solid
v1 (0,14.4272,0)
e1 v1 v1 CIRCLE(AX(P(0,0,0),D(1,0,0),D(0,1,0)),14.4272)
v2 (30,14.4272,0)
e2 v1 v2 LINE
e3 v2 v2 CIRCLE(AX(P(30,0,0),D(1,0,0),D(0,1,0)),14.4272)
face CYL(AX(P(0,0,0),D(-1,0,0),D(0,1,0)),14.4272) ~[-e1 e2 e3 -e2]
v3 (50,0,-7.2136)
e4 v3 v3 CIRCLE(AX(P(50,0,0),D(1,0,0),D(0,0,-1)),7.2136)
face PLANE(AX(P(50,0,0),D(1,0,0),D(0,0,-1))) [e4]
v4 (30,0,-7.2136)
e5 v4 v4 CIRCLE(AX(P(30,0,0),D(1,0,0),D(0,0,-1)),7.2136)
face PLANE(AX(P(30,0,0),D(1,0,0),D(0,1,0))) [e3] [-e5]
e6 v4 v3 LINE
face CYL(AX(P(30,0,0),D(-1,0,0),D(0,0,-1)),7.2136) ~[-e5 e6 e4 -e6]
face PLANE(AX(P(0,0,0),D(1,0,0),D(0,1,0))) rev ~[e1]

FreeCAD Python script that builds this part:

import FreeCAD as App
import Part
import Sketcher

V = App.Vector
Q = App.Units.Quantity

doc = App.newDocument("Part")
params = doc.addObject("Spreadsheet::Sheet", "Params")
for row, (alias, value) in enumerate([
    ("sketch1_diameter", "1.136 in"),
    ("pad1_length", "1.1811024 in"),
    ("sketch2_diameter", "0.568 in"),
    ("pad2_length", "0.7874016 in"),
], start=1):
    params.set(f"A{row}", alias)
    params.set(f"B{row}", "=" + value)
    params.setAlias(f"B{row}", alias)

body = doc.addObject("PartDesign::Body", "Body")

# Sketch on YZ plane
sketch1 = doc.addObject("Sketcher::SketchObject", "Sketch")
body.addObject(sketch1)
sketch1.AttachmentSupport = (doc.YZ_Plane, [""])
sketch1.MapMode = "FlatFace"
sketch1.addGeometry(Part.Circle(V(0, 0, 0), V(0, 0, 1), 14.4272), False)
sketch1.addConstraint(Sketcher.Constraint("Coincident", 0, 3, -1, 1))
sketch1.addConstraint(Sketcher.Constraint("Diameter", 0, Q("1.136 in")))
sketch1.setExpression("Constraints[1]", "Params.sketch1_diameter")
pad1 = doc.addObject("PartDesign::Pad", "Pad")
body.addObject(pad1)
pad1.Profile = sketch1
pad1.setExpression("Length", "Params.pad1_length")

# Sketch on YZ plane
sketch2 = doc.addObject("Sketcher::SketchObject", "Sketch001")
body.addObject(sketch2)
sketch2.AttachmentSupport = (doc.YZ_Plane, [""])
sketch2.MapMode = "FlatFace"
sketch2.AttachmentOffset = App.Placement(V(0, 0, 1.1811024 * 25.4), App.Rotation())
sketch2.addGeometry(Part.Circle(V(0, 0, 0), V(0, 0, 1), 7.2136), False)
sketch2.addConstraint(Sketcher.Constraint("Coincident", 0, 3, -1, 1))
sketch2.addConstraint(Sketcher.Constraint("Diameter", 0, Q("0.568 in")))
sketch2.setExpression("Constraints[1]", "Params.sketch2_diameter")
pad2 = doc.addObject("PartDesign::Pad", "Pad001")
body.addObject(pad2)
pad2.Profile = sketch2
pad2.setExpression("Length", "Params.pad2_length")

doc.recompute()
